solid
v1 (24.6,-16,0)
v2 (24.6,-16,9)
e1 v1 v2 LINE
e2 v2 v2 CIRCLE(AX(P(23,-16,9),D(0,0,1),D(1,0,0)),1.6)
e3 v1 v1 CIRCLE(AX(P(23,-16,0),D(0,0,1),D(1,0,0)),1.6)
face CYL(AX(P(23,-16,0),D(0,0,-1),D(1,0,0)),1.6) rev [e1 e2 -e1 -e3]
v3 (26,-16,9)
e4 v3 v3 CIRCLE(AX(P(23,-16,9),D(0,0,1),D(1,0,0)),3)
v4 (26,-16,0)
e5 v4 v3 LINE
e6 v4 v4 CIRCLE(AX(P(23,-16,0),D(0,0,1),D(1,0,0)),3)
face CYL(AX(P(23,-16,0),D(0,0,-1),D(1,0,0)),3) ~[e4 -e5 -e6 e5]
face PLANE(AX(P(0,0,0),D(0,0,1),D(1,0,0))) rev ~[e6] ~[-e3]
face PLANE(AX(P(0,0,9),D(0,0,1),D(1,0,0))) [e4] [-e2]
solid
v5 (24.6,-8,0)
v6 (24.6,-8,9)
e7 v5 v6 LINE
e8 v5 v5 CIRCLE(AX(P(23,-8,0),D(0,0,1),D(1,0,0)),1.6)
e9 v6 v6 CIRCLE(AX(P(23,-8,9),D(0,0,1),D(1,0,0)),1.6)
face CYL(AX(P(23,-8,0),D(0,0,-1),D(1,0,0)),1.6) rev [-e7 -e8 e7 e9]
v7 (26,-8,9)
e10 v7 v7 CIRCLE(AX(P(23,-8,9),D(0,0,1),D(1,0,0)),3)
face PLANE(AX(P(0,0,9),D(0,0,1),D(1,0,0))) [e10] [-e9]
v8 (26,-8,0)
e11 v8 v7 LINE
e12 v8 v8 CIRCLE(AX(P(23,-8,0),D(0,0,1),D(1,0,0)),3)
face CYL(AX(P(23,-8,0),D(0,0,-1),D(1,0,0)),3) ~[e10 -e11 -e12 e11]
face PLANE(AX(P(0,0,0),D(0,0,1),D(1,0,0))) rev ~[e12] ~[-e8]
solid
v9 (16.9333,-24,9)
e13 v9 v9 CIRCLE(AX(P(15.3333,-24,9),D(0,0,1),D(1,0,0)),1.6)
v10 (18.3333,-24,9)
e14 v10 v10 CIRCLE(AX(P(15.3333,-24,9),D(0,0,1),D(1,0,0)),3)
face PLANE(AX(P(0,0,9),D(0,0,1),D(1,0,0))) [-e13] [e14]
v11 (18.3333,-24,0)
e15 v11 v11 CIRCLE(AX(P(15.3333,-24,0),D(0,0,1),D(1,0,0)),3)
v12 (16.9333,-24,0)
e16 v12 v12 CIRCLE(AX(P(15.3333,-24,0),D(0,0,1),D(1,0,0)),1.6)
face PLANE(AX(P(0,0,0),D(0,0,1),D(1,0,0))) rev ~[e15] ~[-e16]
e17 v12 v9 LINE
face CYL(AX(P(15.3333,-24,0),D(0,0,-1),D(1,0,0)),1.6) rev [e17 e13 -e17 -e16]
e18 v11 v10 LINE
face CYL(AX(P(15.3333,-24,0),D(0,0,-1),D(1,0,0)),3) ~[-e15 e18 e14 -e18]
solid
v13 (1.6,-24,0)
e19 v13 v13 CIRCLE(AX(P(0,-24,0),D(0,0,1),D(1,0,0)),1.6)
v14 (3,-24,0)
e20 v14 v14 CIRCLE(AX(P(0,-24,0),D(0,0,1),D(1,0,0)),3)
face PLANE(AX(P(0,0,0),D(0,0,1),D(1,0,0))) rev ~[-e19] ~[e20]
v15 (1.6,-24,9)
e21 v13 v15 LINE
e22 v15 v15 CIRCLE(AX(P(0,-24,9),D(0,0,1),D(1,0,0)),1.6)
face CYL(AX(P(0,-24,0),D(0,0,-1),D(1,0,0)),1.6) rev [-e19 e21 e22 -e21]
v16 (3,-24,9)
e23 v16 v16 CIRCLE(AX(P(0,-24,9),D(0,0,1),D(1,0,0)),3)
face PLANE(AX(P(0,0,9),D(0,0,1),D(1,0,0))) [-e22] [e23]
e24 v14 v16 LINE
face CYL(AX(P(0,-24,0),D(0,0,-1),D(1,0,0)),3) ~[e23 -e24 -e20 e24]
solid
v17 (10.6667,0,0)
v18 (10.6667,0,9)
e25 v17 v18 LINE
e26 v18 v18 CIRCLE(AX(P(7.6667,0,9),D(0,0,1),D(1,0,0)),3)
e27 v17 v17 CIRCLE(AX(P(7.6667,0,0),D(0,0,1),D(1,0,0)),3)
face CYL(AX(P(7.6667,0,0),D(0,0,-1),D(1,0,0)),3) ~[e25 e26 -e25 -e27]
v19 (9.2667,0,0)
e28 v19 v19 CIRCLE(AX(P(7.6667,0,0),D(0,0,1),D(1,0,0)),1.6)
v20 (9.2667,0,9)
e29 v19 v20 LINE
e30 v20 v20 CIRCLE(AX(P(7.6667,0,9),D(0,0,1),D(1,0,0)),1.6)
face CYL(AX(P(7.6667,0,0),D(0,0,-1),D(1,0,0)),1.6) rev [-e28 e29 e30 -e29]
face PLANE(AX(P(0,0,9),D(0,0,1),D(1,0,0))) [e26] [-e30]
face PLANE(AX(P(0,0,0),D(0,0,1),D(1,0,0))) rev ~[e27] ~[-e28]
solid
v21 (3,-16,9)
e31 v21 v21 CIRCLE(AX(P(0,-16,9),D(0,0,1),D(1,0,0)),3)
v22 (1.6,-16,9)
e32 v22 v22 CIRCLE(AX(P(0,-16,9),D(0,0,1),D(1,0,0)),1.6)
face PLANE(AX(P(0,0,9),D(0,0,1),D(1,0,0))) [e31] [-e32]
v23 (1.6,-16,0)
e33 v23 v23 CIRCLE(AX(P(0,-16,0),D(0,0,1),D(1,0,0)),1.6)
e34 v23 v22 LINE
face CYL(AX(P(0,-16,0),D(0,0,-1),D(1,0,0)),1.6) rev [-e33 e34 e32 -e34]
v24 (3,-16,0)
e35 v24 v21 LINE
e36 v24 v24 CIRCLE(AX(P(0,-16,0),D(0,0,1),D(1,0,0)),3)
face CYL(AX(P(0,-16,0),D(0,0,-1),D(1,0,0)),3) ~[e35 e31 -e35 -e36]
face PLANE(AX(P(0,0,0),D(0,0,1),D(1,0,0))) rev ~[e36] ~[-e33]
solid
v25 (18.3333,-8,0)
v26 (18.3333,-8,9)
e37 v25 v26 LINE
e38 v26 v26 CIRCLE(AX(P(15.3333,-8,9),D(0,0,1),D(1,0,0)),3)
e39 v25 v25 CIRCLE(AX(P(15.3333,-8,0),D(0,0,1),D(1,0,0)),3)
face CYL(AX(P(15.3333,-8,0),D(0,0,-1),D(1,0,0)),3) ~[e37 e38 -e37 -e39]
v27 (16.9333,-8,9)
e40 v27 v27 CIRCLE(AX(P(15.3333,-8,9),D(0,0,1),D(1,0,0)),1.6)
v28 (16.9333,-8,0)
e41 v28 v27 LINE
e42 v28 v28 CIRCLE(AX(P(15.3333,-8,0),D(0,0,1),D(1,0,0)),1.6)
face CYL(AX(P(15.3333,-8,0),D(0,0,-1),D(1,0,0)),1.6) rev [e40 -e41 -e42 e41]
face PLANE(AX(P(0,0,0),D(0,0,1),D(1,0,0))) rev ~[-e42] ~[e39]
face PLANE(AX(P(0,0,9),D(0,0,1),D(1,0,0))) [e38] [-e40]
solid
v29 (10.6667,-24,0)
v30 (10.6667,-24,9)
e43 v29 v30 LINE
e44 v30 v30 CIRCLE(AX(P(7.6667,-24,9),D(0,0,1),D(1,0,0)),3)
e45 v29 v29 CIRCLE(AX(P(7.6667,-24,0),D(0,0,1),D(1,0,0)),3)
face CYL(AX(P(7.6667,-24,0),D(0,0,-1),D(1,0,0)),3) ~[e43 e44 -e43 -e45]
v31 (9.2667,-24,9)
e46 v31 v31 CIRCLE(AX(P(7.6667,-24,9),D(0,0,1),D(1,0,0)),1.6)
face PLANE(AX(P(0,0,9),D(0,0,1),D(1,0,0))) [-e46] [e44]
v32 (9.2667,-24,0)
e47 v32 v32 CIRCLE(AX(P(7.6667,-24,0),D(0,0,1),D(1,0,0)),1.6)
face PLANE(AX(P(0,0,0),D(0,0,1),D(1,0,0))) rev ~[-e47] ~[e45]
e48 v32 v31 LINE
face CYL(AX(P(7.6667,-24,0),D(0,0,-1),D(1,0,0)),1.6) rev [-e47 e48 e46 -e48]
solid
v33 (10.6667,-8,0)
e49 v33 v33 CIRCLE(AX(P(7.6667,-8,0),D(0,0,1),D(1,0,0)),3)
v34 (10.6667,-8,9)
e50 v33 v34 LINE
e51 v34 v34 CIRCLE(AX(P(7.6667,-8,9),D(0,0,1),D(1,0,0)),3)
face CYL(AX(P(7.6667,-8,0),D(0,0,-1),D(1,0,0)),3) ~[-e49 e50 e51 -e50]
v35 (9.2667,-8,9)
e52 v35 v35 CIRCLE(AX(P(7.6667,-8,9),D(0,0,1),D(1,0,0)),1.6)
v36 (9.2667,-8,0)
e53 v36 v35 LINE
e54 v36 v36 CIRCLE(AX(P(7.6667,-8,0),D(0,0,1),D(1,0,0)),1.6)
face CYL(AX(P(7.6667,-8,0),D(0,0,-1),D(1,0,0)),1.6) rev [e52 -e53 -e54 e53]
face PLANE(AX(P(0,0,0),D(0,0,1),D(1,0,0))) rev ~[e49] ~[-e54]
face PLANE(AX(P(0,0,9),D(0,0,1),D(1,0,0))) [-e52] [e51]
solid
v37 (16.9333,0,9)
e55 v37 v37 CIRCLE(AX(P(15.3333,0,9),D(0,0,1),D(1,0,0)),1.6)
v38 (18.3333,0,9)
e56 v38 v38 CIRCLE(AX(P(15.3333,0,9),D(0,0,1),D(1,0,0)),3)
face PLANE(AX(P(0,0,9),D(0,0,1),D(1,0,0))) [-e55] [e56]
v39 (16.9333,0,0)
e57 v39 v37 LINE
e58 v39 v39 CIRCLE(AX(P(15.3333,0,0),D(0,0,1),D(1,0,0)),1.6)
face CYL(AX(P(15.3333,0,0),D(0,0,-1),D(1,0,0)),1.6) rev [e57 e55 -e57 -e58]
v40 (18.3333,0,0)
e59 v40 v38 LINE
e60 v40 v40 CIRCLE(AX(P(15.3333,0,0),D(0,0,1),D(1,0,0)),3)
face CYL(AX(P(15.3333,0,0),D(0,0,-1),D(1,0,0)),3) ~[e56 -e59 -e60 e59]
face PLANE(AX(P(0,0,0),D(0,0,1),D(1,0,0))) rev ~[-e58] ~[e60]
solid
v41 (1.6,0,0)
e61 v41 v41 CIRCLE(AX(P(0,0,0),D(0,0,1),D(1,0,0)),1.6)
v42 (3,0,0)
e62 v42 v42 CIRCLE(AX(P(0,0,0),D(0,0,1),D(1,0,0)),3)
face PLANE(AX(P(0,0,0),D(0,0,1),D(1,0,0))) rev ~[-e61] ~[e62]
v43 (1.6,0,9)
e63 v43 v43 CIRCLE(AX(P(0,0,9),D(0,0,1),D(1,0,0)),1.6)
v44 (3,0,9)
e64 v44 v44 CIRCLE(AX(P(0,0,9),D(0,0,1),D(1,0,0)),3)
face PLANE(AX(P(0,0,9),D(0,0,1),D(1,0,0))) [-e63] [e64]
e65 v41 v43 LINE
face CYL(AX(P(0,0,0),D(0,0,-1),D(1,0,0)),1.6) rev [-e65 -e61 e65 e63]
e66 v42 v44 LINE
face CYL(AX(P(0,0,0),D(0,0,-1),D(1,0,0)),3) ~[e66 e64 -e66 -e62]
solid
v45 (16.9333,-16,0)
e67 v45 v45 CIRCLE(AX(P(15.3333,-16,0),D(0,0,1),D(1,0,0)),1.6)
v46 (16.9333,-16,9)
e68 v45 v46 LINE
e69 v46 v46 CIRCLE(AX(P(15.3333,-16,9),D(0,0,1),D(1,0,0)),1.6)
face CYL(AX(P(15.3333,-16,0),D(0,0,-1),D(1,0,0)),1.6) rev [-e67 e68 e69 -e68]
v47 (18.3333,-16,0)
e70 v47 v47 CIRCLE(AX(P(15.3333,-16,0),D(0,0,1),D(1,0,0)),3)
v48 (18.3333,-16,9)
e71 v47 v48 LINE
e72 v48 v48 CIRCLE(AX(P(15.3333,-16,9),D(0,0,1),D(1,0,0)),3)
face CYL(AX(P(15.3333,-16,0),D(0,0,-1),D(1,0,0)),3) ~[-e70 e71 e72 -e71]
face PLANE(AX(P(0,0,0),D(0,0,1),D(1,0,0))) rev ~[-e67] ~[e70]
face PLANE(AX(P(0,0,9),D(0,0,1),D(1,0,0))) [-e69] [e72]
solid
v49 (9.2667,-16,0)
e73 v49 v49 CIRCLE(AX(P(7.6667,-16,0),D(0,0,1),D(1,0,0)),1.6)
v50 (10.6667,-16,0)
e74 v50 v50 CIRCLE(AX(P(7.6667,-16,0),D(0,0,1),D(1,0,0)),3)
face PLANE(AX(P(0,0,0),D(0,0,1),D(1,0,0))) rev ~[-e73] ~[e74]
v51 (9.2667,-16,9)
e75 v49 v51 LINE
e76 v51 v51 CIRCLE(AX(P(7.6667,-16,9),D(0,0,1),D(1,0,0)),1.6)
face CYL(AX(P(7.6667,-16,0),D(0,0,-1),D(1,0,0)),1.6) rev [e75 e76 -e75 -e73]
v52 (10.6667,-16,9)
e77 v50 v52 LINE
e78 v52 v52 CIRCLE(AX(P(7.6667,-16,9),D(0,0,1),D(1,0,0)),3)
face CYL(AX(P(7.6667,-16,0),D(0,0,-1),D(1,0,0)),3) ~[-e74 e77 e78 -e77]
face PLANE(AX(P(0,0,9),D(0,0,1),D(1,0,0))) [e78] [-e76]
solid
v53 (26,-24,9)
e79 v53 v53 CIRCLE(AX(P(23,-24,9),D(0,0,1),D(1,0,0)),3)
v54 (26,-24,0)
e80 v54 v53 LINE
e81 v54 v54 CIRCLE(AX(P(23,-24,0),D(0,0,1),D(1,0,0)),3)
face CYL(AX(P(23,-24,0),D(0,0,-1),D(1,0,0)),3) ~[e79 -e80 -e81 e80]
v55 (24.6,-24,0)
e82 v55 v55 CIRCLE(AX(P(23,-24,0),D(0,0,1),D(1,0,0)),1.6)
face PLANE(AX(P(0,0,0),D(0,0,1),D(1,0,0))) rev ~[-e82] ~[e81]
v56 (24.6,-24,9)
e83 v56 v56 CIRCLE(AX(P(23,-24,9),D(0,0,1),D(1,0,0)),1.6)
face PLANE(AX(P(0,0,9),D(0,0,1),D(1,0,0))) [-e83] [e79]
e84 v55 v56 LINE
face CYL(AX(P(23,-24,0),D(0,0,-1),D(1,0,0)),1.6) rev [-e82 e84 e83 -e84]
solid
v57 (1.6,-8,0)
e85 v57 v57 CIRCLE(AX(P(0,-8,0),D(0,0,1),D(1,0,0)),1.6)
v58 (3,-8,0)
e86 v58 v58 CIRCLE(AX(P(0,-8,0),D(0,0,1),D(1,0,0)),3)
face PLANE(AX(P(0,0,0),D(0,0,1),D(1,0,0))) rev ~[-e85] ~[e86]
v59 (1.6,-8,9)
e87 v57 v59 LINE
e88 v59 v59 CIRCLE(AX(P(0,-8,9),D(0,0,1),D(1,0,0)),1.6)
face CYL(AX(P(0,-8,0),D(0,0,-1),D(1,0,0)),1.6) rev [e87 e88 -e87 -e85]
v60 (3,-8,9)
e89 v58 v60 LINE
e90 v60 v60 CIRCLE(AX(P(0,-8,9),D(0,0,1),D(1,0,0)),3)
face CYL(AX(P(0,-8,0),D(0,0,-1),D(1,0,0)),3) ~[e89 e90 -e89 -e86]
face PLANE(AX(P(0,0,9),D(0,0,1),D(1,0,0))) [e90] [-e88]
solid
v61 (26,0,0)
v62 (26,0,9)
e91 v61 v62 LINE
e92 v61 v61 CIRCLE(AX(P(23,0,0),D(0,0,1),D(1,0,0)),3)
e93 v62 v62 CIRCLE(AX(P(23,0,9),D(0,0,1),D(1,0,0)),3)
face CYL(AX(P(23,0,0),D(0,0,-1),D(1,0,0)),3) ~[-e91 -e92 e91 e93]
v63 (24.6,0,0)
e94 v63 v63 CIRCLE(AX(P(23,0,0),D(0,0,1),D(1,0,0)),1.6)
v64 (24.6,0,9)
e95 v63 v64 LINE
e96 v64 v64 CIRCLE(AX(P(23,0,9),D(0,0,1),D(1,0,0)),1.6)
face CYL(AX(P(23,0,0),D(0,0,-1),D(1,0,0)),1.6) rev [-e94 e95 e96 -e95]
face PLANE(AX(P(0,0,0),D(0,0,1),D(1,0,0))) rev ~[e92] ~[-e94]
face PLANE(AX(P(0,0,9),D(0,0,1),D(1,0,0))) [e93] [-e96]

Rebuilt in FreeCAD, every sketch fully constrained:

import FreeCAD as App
import Part
import Sketcher

V = App.Vector

doc = App.newDocument("Part")
params = doc.addObject("Spreadsheet::Sheet", "Params")
for row, (alias, value) in enumerate([
    ("sketch1_diameter", "6 mm"),
    ("sketch1_diameter2", "3.2 mm"),
    ("pad1_length", "9 mm"),
], start=1):
    params.set(f"A{row}", alias)
    params.set(f"B{row}", "=" + value)
    params.setAlias(f"B{row}", alias)

body = doc.addObject("PartDesign::Body", "Body")
body.AllowCompound = True

sketch1 = body.newObject("Sketcher::SketchObject", "Sketch")
sketch1.AttachmentSupport = (doc.getObject("XY_Plane"), [""])
sketch1.MapMode = "FlatFace"
sketch1.addGeometry([
    Part.Circle(V(0, 0, 0), V(0, 0, 1), 3),
    Part.Circle(V(0, 0, 0), V(0, 0, 1), 1.6),
    Part.Circle(V(7.7, 0, 0), V(0, 0, 1), 3),
    Part.Circle(V(7.7, 0, 0), V(0, 0, 1), 1.6),
    Part.Circle(V(15.3, 0, 0), V(0, 0, 1), 3),
    Part.Circle(V(15.3, 0, 0), V(0, 0, 1), 1.6),
    Part.Circle(V(23, 0, 0), V(0, 0, 1), 3),
    Part.Circle(V(23, 0, 0), V(0, 0, 1), 1.6),
    Part.Circle(V(0, -8, 0), V(0, 0, 1), 3),
    Part.Circle(V(0, -8, 0), V(0, 0, 1), 1.6),
    Part.Circle(V(7.7, -8, 0), V(0, 0, 1), 3),
    Part.Circle(V(7.7, -8, 0), V(0, 0, 1), 1.6),
    Part.Circle(V(15.3, -8, 0), V(0, 0, 1), 3),
    Part.Circle(V(15.3, -8, 0), V(0, 0, 1), 1.6),
    Part.Circle(V(23, -8, 0), V(0, 0, 1), 3),
    Part.Circle(V(23, -8, 0), V(0, 0, 1), 1.6),
    Part.Circle(V(0, -16, 0), V(0, 0, 1), 3),
    Part.Circle(V(0, -16, 0), V(0, 0, 1), 1.6),
    Part.Circle(V(7.7, -16, 0), V(0, 0, 1), 3),
    Part.Circle(V(7.7, -16, 0), V(0, 0, 1), 1.6),
    Part.Circle(V(15.3, -16, 0), V(0, 0, 1), 3),
    Part.Circle(V(15.3, -16, 0), V(0, 0, 1), 1.6),
    Part.Circle(V(23, -16, 0), V(0, 0, 1), 3),
    Part.Circle(V(23, -16, 0), V(0, 0, 1), 1.6),
    Part.Circle(V(0, -24, 0), V(0, 0, 1), 3),
    Part.Circle(V(0, -24, 0), V(0, 0, 1), 1.6),
    Part.Circle(V(7.7, -24, 0), V(0, 0, 1), 3),
    Part.Circle(V(7.7, -24, 0), V(0, 0, 1), 1.6),
    Part.Circle(V(15.3, -24, 0), V(0, 0, 1), 3),
    Part.Circle(V(15.3, -24, 0), V(0, 0, 1), 1.6),
    Part.Circle(V(23, -24, 0), V(0, 0, 1), 3),
    Part.Circle(V(23, -24, 0), V(0, 0, 1), 1.6),
], False)
sketch1.addConstraint([
    Sketcher.Constraint("Coincident", 0, 3, -1, 1),
    Sketcher.Constraint("Coincident", 1, 3, -1, 1),
    Sketcher.Constraint("Coincident", 3, 3, 2, 3),
    Sketcher.Constraint("Coincident", 5, 3, 4, 3),
    Sketcher.Constraint("Coincident", 7, 3, 6, 3),
    Sketcher.Constraint("Coincident", 9, 3, 8, 3),
    Sketcher.Constraint("Coincident", 11, 3, 10, 3),
    Sketcher.Constraint("Coincident", 13, 3, 12, 3),
    Sketcher.Constraint("Coincident", 15, 3, 14, 3),
    Sketcher.Constraint("Coincident", 17, 3, 16, 3),
    Sketcher.Constraint("Coincident", 19, 3, 18, 3),
    Sketcher.Constraint("Coincident", 21, 3, 20, 3),
    Sketcher.Constraint("Coincident", 23, 3, 22, 3),
    Sketcher.Constraint("Coincident", 25, 3, 24, 3),
    Sketcher.Constraint("Coincident", 27, 3, 26, 3),
    Sketcher.Constraint("Coincident", 29, 3, 28, 3),
    Sketcher.Constraint("Coincident", 31, 3, 30, 3),
    Sketcher.Constraint("Equal", 0, 2),
    Sketcher.Constraint("Equal", 1, 3),
    Sketcher.Constraint("Equal", 2, 4),
    Sketcher.Constraint("Equal", 3, 5),
    Sketcher.Constraint("Equal", 4, 6),
    Sketcher.Constraint("Equal", 5, 7),
    Sketcher.Constraint("Equal", 6, 8),
    Sketcher.Constraint("Equal", 7, 9),
    Sketcher.Constraint("Equal", 8, 10),
    Sketcher.Constraint("Equal", 9, 11),
    Sketcher.Constraint("Equal", 10, 12),
    Sketcher.Constraint("Equal", 11, 13),
    Sketcher.Constraint("Equal", 12, 14),
    Sketcher.Constraint("Equal", 13, 15),
    Sketcher.Constraint("Equal", 14, 16),
    Sketcher.Constraint("Equal", 15, 17),
    Sketcher.Constraint("Equal", 16, 18),
    Sketcher.Constraint("Equal", 17, 19),
    Sketcher.Constraint("Equal", 18, 20),
    Sketcher.Constraint("Equal", 19, 21),
    Sketcher.Constraint("Equal", 20, 22),
    Sketcher.Constraint("Equal", 21, 23),
    Sketcher.Constraint("Equal", 22, 24),
    Sketcher.Constraint("Equal", 23, 25),
    Sketcher.Constraint("Equal", 24, 26),
    Sketcher.Constraint("Equal", 25, 27),
    Sketcher.Constraint("Equal", 26, 28),
    Sketcher.Constraint("Equal", 27, 29),
    Sketcher.Constraint("Equal", 28, 30),
    Sketcher.Constraint("Equal", 29, 31),
    Sketcher.Constraint("PointOnObject", 2, 3, -1),
    Sketcher.Constraint("PointOnObject", 4, 3, -1),
    Sketcher.Constraint("PointOnObject", 6, 3, -1),
    Sketcher.Constraint("PointOnObject", 8, 3, -2),
    Sketcher.Constraint("PointOnObject", 16, 3, -2),
    Sketcher.Constraint("PointOnObject", 24, 3, -2),
    Sketcher.Constraint("Horizontal", 9, 3, 10, 3),
    Sketcher.Constraint("Horizontal", 11, 3, 12, 3),
    Sketcher.Constraint("Horizontal", 13, 3, 14, 3),
    Sketcher.Constraint("Horizontal", 17, 3, 18, 3),
    Sketcher.Constraint("Horizontal", 19, 3, 20, 3),
    Sketcher.Constraint("Horizontal", 21, 3, 22, 3),
    Sketcher.Constraint("Horizontal", 25, 3, 26, 3),
    Sketcher.Constraint("Horizontal", 27, 3, 28, 3),
    Sketcher.Constraint("Horizontal", 29, 3, 30, 3),
    Sketcher.Constraint("Vertical", 3, 3, 10, 3),
    Sketcher.Constraint("Vertical", 5, 3, 12, 3),
    Sketcher.Constraint("Vertical", 7, 3, 14, 3),
    Sketcher.Constraint("Vertical", 11, 3, 18, 3),
    Sketcher.Constraint("Vertical", 13, 3, 20, 3),
    Sketcher.Constraint("Vertical", 15, 3, 22, 3),
    Sketcher.Constraint("Vertical", 19, 3, 26, 3),
    Sketcher.Constraint("Vertical", 21, 3, 28, 3),
    Sketcher.Constraint("Vertical", 23, 3, 30, 3),
    Sketcher.Constraint("Diameter", 0, 6.0),
    Sketcher.Constraint("Diameter", 1, 3.2),
    Sketcher.Constraint("DistanceX", -1, 1, 6, 3, 23.0),
    Sketcher.Constraint("DistanceY", 24, 3, -1, 1, 24.0),
    Sketcher.Constraint("DistanceY", 8, 3, -1, 1, 8.0),
    Sketcher.Constraint("DistanceY", 16, 3, -1, 1, 16.0),
    Sketcher.Constraint("DistanceX", -1, 1, 2, 3, 7.6667),
    Sketcher.Constraint("DistanceX", -1, 1, 4, 3, 15.3333),
])
sketch1.setExpression("Constraints[71]", "Params.sketch1_diameter")
sketch1.setExpression("Constraints[72]", "Params.sketch1_diameter2")
pad1 = body.newObject("PartDesign::Pad", "Pad")
pad1.Profile = sketch1
pad1.setExpression("Length", "Params.pad1_length")

doc.recompute()
